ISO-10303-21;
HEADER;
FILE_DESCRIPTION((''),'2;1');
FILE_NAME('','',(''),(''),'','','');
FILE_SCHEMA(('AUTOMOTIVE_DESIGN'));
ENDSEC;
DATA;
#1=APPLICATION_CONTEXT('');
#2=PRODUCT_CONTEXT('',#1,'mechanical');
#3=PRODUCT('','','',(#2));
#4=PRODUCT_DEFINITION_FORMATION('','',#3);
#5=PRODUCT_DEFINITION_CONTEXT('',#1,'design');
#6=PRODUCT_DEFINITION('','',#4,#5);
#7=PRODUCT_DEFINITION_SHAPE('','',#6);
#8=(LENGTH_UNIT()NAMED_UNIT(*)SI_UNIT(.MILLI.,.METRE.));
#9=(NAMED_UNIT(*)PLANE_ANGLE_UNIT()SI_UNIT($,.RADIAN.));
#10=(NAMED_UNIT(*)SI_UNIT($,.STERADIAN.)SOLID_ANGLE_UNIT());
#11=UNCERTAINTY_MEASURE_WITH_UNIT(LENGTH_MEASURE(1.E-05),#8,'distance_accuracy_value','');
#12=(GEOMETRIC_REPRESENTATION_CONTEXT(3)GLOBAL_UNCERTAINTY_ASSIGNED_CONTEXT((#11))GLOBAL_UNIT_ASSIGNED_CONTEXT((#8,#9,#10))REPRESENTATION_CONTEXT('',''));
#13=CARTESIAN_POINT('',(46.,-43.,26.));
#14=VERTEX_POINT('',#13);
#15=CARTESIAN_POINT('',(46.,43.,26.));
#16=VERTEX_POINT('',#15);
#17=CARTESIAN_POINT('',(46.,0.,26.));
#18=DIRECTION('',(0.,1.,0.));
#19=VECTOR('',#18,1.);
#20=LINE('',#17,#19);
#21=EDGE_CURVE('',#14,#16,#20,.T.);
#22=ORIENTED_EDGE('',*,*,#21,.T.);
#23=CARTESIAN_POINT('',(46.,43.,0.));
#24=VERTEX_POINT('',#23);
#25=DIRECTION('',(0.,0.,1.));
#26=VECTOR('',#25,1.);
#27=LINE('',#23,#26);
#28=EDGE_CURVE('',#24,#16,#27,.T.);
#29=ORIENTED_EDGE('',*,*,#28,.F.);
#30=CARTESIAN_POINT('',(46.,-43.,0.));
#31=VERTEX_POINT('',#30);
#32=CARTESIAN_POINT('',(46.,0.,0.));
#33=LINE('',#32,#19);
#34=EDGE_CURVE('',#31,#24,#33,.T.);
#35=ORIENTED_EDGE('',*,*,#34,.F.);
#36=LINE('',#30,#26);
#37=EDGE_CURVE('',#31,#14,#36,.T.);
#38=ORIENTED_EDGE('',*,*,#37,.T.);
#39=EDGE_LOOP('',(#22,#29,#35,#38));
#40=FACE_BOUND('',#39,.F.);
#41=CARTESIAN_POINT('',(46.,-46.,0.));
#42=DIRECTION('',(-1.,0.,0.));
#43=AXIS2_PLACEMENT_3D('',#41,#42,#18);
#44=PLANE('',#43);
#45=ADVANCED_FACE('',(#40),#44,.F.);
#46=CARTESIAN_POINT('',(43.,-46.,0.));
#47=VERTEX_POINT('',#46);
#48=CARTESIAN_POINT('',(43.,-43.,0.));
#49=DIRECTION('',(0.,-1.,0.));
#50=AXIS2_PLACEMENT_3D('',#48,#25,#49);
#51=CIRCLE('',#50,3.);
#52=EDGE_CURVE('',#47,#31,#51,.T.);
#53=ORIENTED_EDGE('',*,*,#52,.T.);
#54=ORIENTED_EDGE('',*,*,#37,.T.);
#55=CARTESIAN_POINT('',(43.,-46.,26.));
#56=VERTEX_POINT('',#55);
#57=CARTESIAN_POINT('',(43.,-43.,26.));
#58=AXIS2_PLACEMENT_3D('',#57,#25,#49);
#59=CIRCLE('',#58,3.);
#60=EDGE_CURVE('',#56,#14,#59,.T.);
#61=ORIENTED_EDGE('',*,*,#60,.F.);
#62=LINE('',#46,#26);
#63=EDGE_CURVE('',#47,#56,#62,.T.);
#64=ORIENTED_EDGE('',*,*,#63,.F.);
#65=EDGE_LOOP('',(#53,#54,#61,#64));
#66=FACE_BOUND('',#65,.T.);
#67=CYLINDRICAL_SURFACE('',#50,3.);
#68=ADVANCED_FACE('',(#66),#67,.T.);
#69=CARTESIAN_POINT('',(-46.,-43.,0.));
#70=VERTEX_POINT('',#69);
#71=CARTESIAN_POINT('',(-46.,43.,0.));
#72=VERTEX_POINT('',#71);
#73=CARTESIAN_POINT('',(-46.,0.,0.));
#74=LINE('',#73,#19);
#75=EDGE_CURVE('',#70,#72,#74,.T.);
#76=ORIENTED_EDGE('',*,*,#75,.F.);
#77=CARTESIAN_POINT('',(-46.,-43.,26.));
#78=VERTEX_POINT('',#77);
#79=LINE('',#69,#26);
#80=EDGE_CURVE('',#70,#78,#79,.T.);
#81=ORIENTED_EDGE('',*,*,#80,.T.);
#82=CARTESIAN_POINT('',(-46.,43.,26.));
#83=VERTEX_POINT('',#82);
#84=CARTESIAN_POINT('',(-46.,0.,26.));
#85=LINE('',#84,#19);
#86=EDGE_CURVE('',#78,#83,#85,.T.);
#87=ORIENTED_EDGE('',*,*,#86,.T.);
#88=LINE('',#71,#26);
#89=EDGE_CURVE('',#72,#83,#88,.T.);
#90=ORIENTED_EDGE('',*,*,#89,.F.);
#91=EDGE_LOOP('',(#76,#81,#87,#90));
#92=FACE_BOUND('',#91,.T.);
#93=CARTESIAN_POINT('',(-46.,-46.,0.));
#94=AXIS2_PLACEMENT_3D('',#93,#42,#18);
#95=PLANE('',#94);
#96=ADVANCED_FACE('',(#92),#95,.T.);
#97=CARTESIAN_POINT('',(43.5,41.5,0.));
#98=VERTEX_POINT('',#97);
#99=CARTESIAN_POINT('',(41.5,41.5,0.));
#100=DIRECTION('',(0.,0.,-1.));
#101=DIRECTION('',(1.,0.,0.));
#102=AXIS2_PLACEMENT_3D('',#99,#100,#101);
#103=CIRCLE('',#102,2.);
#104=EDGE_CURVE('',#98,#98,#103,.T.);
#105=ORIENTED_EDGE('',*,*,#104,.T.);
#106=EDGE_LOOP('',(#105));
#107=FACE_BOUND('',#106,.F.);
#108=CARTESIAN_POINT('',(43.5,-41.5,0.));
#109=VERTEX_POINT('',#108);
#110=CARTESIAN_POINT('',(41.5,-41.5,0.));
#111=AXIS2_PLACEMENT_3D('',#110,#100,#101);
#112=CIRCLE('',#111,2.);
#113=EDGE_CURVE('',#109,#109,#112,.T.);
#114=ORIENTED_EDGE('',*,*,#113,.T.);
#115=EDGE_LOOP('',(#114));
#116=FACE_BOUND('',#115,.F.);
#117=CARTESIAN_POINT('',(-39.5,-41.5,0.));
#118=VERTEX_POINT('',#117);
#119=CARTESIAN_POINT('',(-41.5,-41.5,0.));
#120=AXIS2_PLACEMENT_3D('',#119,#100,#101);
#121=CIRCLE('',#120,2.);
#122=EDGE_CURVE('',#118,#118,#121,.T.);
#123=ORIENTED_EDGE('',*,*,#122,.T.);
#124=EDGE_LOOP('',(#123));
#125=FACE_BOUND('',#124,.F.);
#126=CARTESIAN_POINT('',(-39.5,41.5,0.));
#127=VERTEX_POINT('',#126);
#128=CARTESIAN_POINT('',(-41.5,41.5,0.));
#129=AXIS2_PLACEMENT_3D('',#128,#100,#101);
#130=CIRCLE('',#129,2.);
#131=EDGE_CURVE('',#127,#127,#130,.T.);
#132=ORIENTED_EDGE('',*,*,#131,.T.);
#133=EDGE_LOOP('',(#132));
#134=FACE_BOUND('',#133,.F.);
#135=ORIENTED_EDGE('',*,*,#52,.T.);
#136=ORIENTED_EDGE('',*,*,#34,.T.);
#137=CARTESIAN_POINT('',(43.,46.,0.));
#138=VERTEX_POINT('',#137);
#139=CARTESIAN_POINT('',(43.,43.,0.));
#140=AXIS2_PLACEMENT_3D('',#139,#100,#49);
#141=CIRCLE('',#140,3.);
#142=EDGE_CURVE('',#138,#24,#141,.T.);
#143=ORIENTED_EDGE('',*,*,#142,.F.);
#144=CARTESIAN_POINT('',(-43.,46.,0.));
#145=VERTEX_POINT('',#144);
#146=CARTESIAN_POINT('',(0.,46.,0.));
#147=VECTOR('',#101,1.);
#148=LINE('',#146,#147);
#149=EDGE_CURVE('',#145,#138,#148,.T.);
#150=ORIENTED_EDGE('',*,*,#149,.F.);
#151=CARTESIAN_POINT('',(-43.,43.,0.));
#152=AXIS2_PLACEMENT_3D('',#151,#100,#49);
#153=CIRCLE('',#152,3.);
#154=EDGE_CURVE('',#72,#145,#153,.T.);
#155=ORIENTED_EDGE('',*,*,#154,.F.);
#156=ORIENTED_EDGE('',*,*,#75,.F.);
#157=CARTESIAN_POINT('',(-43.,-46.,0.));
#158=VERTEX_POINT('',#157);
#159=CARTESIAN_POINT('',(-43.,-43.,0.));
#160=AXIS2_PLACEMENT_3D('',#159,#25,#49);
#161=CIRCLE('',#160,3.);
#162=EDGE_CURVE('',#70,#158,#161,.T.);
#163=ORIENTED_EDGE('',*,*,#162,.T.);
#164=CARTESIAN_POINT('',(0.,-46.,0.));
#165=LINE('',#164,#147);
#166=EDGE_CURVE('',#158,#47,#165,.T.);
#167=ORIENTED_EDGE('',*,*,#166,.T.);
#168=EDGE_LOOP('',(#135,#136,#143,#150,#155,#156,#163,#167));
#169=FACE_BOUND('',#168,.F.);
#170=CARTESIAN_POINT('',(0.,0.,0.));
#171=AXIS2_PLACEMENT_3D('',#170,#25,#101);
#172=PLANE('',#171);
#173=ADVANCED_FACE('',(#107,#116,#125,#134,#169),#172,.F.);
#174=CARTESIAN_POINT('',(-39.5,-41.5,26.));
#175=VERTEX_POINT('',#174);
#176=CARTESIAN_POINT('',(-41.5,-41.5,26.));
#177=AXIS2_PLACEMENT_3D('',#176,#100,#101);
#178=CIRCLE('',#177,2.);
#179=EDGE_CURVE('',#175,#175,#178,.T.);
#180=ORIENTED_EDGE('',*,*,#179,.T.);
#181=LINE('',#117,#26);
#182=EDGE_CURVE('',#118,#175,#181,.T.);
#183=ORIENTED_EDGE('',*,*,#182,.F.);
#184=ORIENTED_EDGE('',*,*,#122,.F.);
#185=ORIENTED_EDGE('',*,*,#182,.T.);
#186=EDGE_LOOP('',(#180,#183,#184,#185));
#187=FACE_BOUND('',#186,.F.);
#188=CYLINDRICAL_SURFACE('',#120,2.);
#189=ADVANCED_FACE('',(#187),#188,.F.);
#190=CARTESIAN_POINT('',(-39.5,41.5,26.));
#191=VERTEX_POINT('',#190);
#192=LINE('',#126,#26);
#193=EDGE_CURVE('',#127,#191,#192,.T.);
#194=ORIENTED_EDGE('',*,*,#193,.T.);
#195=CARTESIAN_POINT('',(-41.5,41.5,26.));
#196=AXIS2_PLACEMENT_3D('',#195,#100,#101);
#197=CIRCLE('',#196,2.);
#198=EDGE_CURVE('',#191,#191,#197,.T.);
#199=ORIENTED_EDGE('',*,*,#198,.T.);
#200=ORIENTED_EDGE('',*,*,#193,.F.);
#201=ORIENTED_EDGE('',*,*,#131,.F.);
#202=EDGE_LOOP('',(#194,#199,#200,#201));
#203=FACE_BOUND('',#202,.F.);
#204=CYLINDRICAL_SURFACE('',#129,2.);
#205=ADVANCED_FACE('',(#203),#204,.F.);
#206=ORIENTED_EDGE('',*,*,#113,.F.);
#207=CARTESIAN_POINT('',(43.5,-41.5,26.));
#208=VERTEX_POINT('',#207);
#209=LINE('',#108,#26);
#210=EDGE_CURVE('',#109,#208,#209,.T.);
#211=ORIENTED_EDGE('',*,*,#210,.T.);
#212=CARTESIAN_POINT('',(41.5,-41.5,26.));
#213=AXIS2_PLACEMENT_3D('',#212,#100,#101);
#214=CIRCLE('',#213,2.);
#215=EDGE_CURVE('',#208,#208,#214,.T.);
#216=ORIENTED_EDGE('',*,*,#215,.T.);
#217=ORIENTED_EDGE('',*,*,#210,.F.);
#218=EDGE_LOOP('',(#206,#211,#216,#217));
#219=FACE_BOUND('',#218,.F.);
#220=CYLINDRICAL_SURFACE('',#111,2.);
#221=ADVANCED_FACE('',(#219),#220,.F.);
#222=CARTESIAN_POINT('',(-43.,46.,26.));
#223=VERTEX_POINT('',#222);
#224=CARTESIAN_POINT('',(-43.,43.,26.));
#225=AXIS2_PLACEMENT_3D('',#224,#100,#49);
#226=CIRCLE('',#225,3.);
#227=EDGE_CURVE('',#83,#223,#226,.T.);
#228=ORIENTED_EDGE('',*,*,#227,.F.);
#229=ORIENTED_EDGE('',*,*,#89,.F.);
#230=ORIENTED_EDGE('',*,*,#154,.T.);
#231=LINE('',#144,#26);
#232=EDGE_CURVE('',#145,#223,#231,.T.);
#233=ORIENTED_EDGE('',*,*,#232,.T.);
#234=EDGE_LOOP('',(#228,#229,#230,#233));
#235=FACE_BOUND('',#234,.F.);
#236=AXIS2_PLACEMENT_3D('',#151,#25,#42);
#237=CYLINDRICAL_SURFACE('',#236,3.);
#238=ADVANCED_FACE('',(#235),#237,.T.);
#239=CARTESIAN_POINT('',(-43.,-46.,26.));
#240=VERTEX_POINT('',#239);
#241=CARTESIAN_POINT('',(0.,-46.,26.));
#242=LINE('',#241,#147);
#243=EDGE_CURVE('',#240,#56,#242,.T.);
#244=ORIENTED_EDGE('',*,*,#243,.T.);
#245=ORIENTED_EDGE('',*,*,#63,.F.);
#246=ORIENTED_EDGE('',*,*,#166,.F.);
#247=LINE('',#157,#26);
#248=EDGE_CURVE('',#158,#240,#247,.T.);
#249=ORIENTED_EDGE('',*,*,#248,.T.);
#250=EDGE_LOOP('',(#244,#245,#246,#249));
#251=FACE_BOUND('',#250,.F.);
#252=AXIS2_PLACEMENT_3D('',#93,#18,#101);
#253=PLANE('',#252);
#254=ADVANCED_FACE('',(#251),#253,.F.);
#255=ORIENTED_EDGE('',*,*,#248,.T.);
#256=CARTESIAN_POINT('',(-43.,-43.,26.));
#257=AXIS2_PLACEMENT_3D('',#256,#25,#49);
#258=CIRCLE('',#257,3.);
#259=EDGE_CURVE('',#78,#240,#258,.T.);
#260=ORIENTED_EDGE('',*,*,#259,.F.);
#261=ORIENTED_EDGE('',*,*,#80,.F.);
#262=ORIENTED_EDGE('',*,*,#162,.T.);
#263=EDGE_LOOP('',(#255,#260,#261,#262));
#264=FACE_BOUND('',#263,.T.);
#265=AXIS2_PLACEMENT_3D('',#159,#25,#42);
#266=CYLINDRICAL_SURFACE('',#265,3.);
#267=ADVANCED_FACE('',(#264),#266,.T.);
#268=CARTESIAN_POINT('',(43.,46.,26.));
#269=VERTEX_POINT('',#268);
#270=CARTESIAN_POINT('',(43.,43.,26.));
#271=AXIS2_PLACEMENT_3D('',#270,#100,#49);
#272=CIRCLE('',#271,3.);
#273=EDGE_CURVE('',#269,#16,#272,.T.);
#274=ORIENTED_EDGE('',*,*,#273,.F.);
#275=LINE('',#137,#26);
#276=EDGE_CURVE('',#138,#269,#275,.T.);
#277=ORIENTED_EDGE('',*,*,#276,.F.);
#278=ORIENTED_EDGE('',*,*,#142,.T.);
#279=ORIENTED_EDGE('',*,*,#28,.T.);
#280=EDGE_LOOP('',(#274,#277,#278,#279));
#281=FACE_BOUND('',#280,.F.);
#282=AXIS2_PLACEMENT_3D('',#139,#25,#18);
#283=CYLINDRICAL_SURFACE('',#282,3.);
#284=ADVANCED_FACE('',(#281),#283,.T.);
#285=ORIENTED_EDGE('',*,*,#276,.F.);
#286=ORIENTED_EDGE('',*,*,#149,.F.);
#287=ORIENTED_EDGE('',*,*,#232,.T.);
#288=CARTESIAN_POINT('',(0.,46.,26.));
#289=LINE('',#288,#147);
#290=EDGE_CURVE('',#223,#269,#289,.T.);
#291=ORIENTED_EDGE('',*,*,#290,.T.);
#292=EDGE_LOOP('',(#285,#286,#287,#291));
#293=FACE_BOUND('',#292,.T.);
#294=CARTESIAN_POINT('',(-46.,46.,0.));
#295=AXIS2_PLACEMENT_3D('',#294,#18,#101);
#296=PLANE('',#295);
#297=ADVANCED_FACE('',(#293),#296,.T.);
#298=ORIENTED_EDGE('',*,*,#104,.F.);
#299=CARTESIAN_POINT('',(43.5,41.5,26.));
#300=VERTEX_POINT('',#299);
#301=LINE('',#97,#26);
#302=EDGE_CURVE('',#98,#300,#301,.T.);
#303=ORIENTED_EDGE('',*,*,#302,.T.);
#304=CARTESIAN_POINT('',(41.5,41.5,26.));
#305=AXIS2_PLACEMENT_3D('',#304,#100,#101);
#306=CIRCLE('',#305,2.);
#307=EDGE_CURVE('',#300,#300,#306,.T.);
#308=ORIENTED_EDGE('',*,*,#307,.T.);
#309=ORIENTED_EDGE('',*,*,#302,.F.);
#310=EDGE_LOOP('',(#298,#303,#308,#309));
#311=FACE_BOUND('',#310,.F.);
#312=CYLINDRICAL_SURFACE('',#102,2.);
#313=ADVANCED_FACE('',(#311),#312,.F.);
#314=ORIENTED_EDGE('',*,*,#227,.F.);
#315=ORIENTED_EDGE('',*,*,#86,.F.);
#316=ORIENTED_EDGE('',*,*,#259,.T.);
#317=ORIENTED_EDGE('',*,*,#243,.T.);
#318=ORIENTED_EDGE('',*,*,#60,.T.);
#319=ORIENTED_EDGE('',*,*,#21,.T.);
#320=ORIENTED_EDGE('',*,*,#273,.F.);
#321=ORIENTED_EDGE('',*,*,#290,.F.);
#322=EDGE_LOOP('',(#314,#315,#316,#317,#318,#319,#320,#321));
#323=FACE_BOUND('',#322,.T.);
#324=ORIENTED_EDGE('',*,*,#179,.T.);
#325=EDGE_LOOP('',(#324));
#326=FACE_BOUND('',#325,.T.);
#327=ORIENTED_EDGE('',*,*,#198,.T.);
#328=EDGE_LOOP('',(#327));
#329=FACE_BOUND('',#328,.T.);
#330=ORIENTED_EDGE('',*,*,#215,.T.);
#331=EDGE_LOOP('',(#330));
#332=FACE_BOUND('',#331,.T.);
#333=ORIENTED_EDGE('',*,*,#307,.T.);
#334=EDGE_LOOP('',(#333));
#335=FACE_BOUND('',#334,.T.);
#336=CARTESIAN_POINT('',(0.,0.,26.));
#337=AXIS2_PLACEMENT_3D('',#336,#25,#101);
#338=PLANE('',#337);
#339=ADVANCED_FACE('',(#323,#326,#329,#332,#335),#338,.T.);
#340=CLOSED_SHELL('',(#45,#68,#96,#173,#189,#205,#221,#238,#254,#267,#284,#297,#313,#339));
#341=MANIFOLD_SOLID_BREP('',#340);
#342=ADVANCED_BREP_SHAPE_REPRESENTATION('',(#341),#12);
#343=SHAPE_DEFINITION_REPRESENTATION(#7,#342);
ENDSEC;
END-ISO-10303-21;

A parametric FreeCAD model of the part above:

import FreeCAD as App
import Part
import Sketcher

V = App.Vector


def edges_at(feature, points):
    """Names of the edges that pass closest to the given points."""
    edges = feature.Shape.Edges
    near = lambda p: min(range(len(edges)), key=lambda i: edges[i].distToShape(Part.Vertex(*p))[0])
    return sorted({f"Edge{near(p) + 1}" for p in points})

doc = App.newDocument("Part")
body = doc.addObject("PartDesign::Body", "Body")

# Sketch on XY plane
sketch1 = body.newObject("Sketcher::SketchObject", "Sketch")
sketch1.AttachmentSupport = (doc.getObject("XY_Plane"), [""])
sketch1.MapMode = "FlatFace"
sketch1.addGeometry(Part.LineSegment(V(-46, 46, 0), V(-46, -46, 0)), False)
sketch1.addGeometry(Part.LineSegment(V(-46, -46, 0), V(46, -46, 0)), False)
sketch1.addGeometry(Part.LineSegment(V(46, -46, 0), V(46, 46, 0)), False)
sketch1.addGeometry(Part.LineSegment(V(46, 46, 0), V(-46, 46, 0)), False)
sketch1.addConstraint(Sketcher.Constraint("Coincident", 0, 2, 1, 1))
sketch1.addConstraint(Sketcher.Constraint("Coincident", 1, 2, 2, 1))
sketch1.addConstraint(Sketcher.Constraint("Coincident", 2, 2, 3, 1))
sketch1.addConstraint(Sketcher.Constraint("Coincident", 3, 2, 0, 1))
sketch1.addConstraint(Sketcher.Constraint("Vertical", 0))
sketch1.addConstraint(Sketcher.Constraint("Horizontal", 1))
sketch1.addConstraint(Sketcher.Constraint("Vertical", 2))
sketch1.addConstraint(Sketcher.Constraint("Horizontal", 3))
sketch1.addConstraint(Sketcher.Constraint("Symmetric", 0, 2, 2, 2, -1, 1))
sketch1.addConstraint(Sketcher.Constraint("Equal", 3, 0))
sketch1.addConstraint(Sketcher.Constraint("DistanceX", 1, 1, 1, 2, 92.0))
pad1 = body.newObject("PartDesign::Pad", "Pad")
pad1.Profile = sketch1
pad1.Length = 26

# Sketch on XY plane
sketch2 = body.newObject("Sketcher::SketchObject", "Sketch001")
sketch2.AttachmentSupport = (doc.getObject("XY_Plane"), [""])
sketch2.MapMode = "FlatFace"
sketch2.addGeometry(Part.Circle(V(41.5, -41.5, 0), V(0, 0, 1), 2), False)
sketch2.addGeometry(Part.Circle(V(-41.5, -41.5, 0), V(0, 0, 1), 2), False)
sketch2.addGeometry(Part.Circle(V(41.5, 41.5, 0), V(0, 0, 1), 2), False)
sketch2.addGeometry(Part.Circle(V(-41.5, 41.5, 0), V(0, 0, 1), 2), False)
sketch2.addConstraint(Sketcher.Constraint("Equal", 0, 1))
sketch2.addConstraint(Sketcher.Constraint("Equal", 1, 2))
sketch2.addConstraint(Sketcher.Constraint("Equal", 2, 3))
sketch2.addConstraint(Sketcher.Constraint("Symmetric", 1, 3, 2, 3, -1, 1))
sketch2.addConstraint(Sketcher.Constraint("Symmetric", 0, 3, 3, 3, -1, 1))
sketch2.addConstraint(Sketcher.Constraint("Symmetric", 0, 3, 1, 3, -2))
sketch2.addConstraint(Sketcher.Constraint("Diameter", 0, 4.0))
sketch2.addConstraint(Sketcher.Constraint("DistanceX", 1, 3, 0, 3, 83.0))
sketch2.addConstraint(Sketcher.Constraint("DistanceY", 0, 3, 2, 3, 83.0))
pocket1 = body.newObject("PartDesign::Pocket", "Pocket")
pocket1.Profile = sketch2
pocket1.Type = "ThroughAll"
pocket1.Midplane = True
doc.recompute()

fillet = body.newObject("PartDesign::Fillet", "Fillet")
fillet.Base = (pocket1, edges_at(pocket1, [
    (-46, 46, 13),
    (-46, -46, 13),
    (46, -46, 13),
    (46, 46, 13),
]))
fillet.Radius = 3

doc.recompute()
